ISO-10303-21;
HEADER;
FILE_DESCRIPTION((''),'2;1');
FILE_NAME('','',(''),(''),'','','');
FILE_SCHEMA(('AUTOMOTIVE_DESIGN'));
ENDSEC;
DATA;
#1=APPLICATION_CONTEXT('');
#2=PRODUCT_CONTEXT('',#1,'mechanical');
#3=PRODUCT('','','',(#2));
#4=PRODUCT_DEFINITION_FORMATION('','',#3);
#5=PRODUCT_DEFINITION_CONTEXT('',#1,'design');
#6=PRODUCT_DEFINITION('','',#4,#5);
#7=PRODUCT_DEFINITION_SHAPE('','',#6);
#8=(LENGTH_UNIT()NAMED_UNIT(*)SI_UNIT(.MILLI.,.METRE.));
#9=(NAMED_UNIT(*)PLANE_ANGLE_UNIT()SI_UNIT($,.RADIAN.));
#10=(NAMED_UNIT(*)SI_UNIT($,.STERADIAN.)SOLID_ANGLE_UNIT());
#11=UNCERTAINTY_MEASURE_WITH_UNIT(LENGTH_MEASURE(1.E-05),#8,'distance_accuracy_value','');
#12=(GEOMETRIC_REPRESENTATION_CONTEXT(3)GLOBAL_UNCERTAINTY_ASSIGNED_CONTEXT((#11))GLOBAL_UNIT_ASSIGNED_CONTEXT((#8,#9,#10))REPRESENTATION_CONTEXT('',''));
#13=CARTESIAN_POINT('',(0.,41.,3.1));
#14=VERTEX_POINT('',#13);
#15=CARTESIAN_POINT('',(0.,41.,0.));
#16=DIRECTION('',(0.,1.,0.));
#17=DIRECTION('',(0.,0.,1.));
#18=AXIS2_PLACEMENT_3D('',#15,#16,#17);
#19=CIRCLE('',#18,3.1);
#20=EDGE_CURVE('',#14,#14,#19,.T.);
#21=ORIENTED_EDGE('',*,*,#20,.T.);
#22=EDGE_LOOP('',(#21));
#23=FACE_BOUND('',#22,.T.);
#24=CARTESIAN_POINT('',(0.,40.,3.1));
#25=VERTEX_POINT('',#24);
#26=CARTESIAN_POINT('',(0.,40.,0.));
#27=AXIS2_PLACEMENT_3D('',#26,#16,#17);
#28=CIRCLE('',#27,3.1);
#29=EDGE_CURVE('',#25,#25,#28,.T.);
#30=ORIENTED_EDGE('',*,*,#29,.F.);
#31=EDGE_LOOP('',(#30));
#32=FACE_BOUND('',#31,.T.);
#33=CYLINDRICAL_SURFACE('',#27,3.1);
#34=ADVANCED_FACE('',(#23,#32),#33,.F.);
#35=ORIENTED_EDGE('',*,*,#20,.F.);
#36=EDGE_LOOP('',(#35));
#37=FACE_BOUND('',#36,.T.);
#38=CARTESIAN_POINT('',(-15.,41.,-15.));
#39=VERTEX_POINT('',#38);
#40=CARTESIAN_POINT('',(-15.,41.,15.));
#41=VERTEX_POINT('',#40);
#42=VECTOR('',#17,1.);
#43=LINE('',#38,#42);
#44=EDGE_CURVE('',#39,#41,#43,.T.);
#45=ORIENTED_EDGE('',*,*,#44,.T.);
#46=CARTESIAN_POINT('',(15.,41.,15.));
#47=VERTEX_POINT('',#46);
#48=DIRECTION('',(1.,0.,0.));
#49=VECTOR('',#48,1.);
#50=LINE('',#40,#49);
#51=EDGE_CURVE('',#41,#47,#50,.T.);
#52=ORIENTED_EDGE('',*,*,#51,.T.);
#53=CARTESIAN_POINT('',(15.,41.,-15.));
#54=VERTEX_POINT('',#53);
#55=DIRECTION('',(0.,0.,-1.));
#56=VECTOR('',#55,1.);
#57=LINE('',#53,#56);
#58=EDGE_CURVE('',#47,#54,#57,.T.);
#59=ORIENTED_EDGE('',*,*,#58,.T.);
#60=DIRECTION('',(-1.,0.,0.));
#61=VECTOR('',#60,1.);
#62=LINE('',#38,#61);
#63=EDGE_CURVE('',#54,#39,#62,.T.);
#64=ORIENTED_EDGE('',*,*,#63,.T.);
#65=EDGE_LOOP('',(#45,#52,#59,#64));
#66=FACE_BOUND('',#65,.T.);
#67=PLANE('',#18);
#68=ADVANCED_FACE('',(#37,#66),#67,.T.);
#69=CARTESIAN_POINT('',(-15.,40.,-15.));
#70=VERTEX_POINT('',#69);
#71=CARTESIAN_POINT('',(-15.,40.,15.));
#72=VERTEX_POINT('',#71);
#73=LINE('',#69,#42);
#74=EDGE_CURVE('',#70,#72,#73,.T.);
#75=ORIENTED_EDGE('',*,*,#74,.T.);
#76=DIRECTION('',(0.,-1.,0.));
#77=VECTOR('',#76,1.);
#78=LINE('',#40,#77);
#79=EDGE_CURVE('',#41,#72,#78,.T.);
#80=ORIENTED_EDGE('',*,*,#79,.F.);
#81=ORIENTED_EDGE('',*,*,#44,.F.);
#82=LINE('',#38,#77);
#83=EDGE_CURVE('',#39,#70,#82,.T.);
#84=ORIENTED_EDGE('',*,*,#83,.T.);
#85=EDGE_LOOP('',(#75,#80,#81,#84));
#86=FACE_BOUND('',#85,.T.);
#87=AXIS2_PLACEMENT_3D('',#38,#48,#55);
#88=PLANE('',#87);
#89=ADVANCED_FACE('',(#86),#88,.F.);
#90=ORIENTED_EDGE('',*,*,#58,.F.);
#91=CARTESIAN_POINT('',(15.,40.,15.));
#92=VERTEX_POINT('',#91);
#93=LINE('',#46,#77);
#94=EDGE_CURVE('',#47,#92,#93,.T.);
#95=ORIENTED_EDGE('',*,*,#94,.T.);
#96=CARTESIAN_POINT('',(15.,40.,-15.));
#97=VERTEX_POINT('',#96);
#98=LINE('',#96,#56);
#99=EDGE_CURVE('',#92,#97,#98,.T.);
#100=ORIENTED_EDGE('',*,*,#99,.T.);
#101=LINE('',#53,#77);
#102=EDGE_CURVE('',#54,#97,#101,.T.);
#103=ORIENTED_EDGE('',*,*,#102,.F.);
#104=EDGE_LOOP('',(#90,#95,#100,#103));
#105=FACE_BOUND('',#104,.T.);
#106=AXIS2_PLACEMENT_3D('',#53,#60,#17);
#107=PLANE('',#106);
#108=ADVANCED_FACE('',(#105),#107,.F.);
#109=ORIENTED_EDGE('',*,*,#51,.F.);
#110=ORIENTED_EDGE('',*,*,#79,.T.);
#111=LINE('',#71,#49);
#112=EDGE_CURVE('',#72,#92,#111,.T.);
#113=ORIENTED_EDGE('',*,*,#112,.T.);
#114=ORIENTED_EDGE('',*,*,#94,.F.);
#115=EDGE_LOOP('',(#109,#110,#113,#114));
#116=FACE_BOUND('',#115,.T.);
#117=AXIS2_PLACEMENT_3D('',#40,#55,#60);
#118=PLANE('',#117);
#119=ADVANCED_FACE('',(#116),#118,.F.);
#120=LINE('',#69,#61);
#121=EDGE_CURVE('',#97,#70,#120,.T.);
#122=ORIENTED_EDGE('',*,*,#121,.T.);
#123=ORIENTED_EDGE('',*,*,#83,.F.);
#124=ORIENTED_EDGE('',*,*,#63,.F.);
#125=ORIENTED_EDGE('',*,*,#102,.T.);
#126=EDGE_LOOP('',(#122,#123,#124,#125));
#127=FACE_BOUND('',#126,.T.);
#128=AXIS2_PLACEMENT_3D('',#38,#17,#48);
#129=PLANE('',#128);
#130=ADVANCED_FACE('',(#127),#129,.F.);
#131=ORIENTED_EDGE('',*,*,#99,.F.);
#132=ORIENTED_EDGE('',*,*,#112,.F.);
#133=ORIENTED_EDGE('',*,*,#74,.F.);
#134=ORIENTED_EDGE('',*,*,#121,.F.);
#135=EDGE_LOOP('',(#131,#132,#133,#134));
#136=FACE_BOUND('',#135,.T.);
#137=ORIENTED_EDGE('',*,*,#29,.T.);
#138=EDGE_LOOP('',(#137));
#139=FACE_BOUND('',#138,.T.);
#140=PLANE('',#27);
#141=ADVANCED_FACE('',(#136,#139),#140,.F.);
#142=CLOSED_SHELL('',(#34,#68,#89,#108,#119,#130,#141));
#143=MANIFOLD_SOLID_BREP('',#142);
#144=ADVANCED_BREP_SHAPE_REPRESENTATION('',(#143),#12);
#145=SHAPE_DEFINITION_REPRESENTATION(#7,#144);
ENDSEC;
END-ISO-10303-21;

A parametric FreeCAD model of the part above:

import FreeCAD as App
import Part
import Sketcher
Q = App.Units.Quantity


def add_polygon(sketch, points):
    """Adds a closed chain of lines whose ends are joined by coincident constraints."""
    first, n = sketch.GeometryCount, len(points)
    for a, b in zip(points, points[1:] + points[:1]):
        sketch.addGeometry(Part.LineSegment(App.Vector(*a, 0), App.Vector(*b, 0)), False)
    for i in range(n):
        sketch.addConstraint(Sketcher.Constraint("Coincident", first + i, 2, first + (i + 1) % n, 1))

doc = App.newDocument("Part")
params = doc.addObject("Spreadsheet::Sheet", "Params")
for row, (alias, value) in enumerate([
    ("sketch1_width", "30 mm"),
    ("pad1_length", "10 mm"),
    ("sketch2_width", "30 mm"),
    ("sketch2_width2", "25 mm"),
    ("pad2_length", "15 mm"),
    ("sketch3_width", "30 mm"),
    ("pad3_length", "15 mm"),
    ("sketch4_diameter", "6.1 mm"),
    ("pad4_length", "40 mm"),
    ("sketch5_width", "7.5 mm"),
    ("pad5_length", "10 mm"),
    ("pad5_length2", "40 mm"),
    ("sketch6_diameter", "5.52 mm"),
    ("pocket1_length", "10 mm"),
    ("sketch7_width", "30 mm"),
    ("pad6_length", "1 mm"),
    ("sketch8_diameter", "6.2 mm"),
    ("pocket2_length", "1 mm"),
], start=1):
    params.set(f"A{row}", alias)
    params.set(f"B{row}", "=" + value)
    params.setAlias(f"B{row}", alias)

body = doc.addObject("PartDesign::Body", "Body")

sketch1 = body.newObject("Sketcher::SketchObject", "Sketch")
sketch1.AttachmentSupport = (doc.getObject("XZ_Plane"), [""])
sketch1.MapMode = "FlatFace"
add_polygon(sketch1, [(-15, -15), (-15, 15), (15, 15), (15, -15)])
sketch1.addConstraint(Sketcher.Constraint("Vertical", 0))
sketch1.addConstraint(Sketcher.Constraint("Horizontal", 1))
sketch1.addConstraint(Sketcher.Constraint("Vertical", 2))
sketch1.addConstraint(Sketcher.Constraint("Horizontal", 3))
sketch1.addConstraint(Sketcher.Constraint("Symmetric", 0, 2, 2, 2, -1, 1))
sketch1.addConstraint(Sketcher.Constraint("Equal", 3, 0))
sketch1.addConstraint(Sketcher.Constraint("DistanceX", 1, 1, 1, 2, Q("30 mm")))
sketch1.setExpression("Constraints[10]", "Params.sketch1_width")
pad1 = body.newObject("PartDesign::Pad", "Pad")
pad1.Profile = sketch1
pad1.setExpression("Length", "Params.pad1_length")
pad1.Reversed = True
body2 = doc.addObject("PartDesign::Body", "Body001")

sketch2 = body2.newObject("Sketcher::SketchObject", "Sketch001")
sketch2.AttachmentSupport = (doc.getObject("XZ_Plane001"), [""])
sketch2.MapMode = "FlatFace"
sketch2.AttachmentOffset = App.Placement(App.Vector(0, 0, -10), App.Rotation())
add_polygon(sketch2, [(-15, -15), (-15, 15), (15, 15), (15, -15)])
add_polygon(sketch2, [(12.5, 12.5), (-12.5, 12.5), (-12.5, -12.5), (12.5, -12.5)])
sketch2.addConstraint(Sketcher.Constraint("Vertical", 0))
sketch2.addConstraint(Sketcher.Constraint("Horizontal", 1))
sketch2.addConstraint(Sketcher.Constraint("Vertical", 2))
sketch2.addConstraint(Sketcher.Constraint("Horizontal", 3))
sketch2.addConstraint(Sketcher.Constraint("Horizontal", 4))
sketch2.addConstraint(Sketcher.Constraint("Vertical", 5))
sketch2.addConstraint(Sketcher.Constraint("Horizontal", 6))
sketch2.addConstraint(Sketcher.Constraint("Vertical", 7))
sketch2.addConstraint(Sketcher.Constraint("Symmetric", 0, 2, 2, 2, -1, 1))
sketch2.addConstraint(Sketcher.Constraint("Symmetric", 4, 2, 6, 2, -1, 1))
sketch2.addConstraint(Sketcher.Constraint("Equal", 3, 0))
sketch2.addConstraint(Sketcher.Constraint("Equal", 6, 5))
sketch2.addConstraint(Sketcher.Constraint("DistanceX", 1, 1, 1, 2, Q("30 mm")))
sketch2.addConstraint(Sketcher.Constraint("DistanceX", 4, 2, 4, 1, Q("25 mm")))
sketch2.setExpression("Constraints[20]", "Params.sketch2_width")
sketch2.setExpression("Constraints[21]", "Params.sketch2_width2")
pad2 = body2.newObject("PartDesign::Pad", "Pad001")
pad2.Profile = sketch2
pad2.setExpression("Length", "Params.pad2_length")
pad2.Reversed = True
body3 = doc.addObject("PartDesign::Body", "Body002")

sketch3 = body3.newObject("Sketcher::SketchObject", "Sketch002")
sketch3.AttachmentSupport = (doc.getObject("XZ_Plane002"), [""])
sketch3.MapMode = "FlatFace"
sketch3.AttachmentOffset = App.Placement(App.Vector(0, 0, -25), App.Rotation())
add_polygon(sketch3, [(-15, -15), (-15, 15), (15, 15), (15, -15)])
sketch3.addConstraint(Sketcher.Constraint("Vertical", 0))
sketch3.addConstraint(Sketcher.Constraint("Horizontal", 1))
sketch3.addConstraint(Sketcher.Constraint("Vertical", 2))
sketch3.addConstraint(Sketcher.Constraint("Horizontal", 3))
sketch3.addConstraint(Sketcher.Constraint("Symmetric", 0, 2, 2, 2, -1, 1))
sketch3.addConstraint(Sketcher.Constraint("Equal", 3, 0))
sketch3.addConstraint(Sketcher.Constraint("DistanceX", 1, 1, 1, 2, Q("30 mm")))
sketch3.setExpression("Constraints[10]", "Params.sketch3_width")
pad3 = body3.newObject("PartDesign::Pad", "Pad002")
pad3.Profile = sketch3
pad3.setExpression("Length", "Params.pad3_length")
pad3.Reversed = True
body4 = doc.addObject("PartDesign::Body", "Body003")

sketch4 = body4.newObject("Sketcher::SketchObject", "Sketch003")
sketch4.AttachmentSupport = (doc.getObject("XZ_Plane003"), [""])
sketch4.MapMode = "FlatFace"
sketch4.addGeometry(Part.Circle(App.Vector(0, 0, 0), App.Vector(0, 0, 1), 3.05), False)
sketch4.addConstraint(Sketcher.Constraint("Coincident", 0, 3, -1, 1))
sketch4.addConstraint(Sketcher.Constraint("Diameter", 0, Q("6.1 mm")))
sketch4.setExpression("Constraints[1]", "Params.sketch4_diameter")
pad4 = body4.newObject("PartDesign::Pad", "Pad003")
pad4.Profile = sketch4
pad4.setExpression("Length", "Params.pad4_length")
pad4.Reversed = True
doc.recompute()

body5 = doc.addObject("PartDesign::Body", "Body004")
body5.BaseFeature = body4
boolean = body.newObject("PartDesign::Boolean", "Boolean")
boolean.Type = "Cut"
boolean.addObjects([body5])
doc.recompute()

boolean2 = body3.newObject("PartDesign::Boolean", "Boolean001")
boolean2.Type = "Cut"
boolean2.addObjects([body4])

sketch5 = body3.newObject("Sketcher::SketchObject", "Sketch004")
sketch5.AttachmentSupport = (doc.getObject("XY_Plane002"), [""])
sketch5.MapMode = "FlatFace"
sketch5.AttachmentOffset = App.Placement(App.Vector(0, 0, -15), App.Rotation())
add_polygon(sketch5, [(15, 26.017843), (15, 25), (7.5, 25), (7.5, 26.017843)])
add_polygon(sketch5, [(-7.5, 26.276183), (-7.5, 25), (-15, 25), (-15, 26.276183)])
sketch5.addConstraint(Sketcher.Constraint("Vertical", 0))
sketch5.addConstraint(Sketcher.Constraint("Horizontal", 1))
sketch5.addConstraint(Sketcher.Constraint("Vertical", 2))
sketch5.addConstraint(Sketcher.Constraint("Horizontal", 3))
sketch5.addConstraint(Sketcher.Constraint("Vertical", 4))
sketch5.addConstraint(Sketcher.Constraint("Horizontal", 5))
sketch5.addConstraint(Sketcher.Constraint("Vertical", 6))
sketch5.addConstraint(Sketcher.Constraint("Horizontal", 7))
sketch5.addConstraint(Sketcher.Constraint("Symmetric", 1, 2, 4, 2, -2))
sketch5.addConstraint(Sketcher.Constraint("Equal", 3, 5))
sketch5.addConstraint(Sketcher.Constraint("DistanceX", 1, 2, 1, 1, Q("7.5 mm")))
sketch5.addConstraint(Sketcher.Constraint("DistanceX", -1, 1, 0, 2, Q("15 mm")))
sketch5.addConstraint(Sketcher.Constraint("DistanceY", -1, 1, 0, 2, Q("25 mm")))
sketch5.addConstraint(Sketcher.Constraint("DistanceY", 0, 2, 0, 1, Q("1.017843 mm")))
sketch5.addConstraint(Sketcher.Constraint("DistanceY", 4, 2, 4, 1, Q("1.276183 mm")))
sketch5.setExpression("Constraints[18]", "Params.sketch5_width")
pad5 = body3.newObject("PartDesign::Pad", "Pad004")
pad5.Profile = sketch5
pad5.Type = "TwoLengths"
pad5.setExpression("Length", "Params.pad5_length")
pad5.setExpression("Length2", "Params.pad5_length2")
pad5.Reversed = True

sketch6 = body3.newObject("Sketcher::SketchObject", "Sketch005")
sketch6.AttachmentSupport = (doc.getObject("XZ_Plane002"), [""])
sketch6.MapMode = "FlatFace"
sketch6.AttachmentOffset = App.Placement(App.Vector(0, 0, -26.276183), App.Rotation())
sketch6.addGeometry(Part.Circle(App.Vector(-11.25, -20, 0), App.Vector(0, 0, 1), 2.76), False)
sketch6.addGeometry(Part.Circle(App.Vector(11.25, -20, 0), App.Vector(0, 0, 1), 2.76), False)
sketch6.addGeometry(Part.Circle(App.Vector(11.25, 20.5, 0), App.Vector(0, 0, 1), 2.76), False)
sketch6.addGeometry(Part.Circle(App.Vector(-11.25, 20.5, 0), App.Vector(0, 0, 1), 2.76), False)
sketch6.addConstraint(Sketcher.Constraint("Equal", 0, 1))
sketch6.addConstraint(Sketcher.Constraint("Equal", 1, 2))
sketch6.addConstraint(Sketcher.Constraint("Equal", 2, 3))
sketch6.addConstraint(Sketcher.Constraint("Symmetric", 0, 3, 1, 3, -2))
sketch6.addConstraint(Sketcher.Constraint("Symmetric", 2, 3, 3, 3, -2))
sketch6.addConstraint(Sketcher.Constraint("Vertical", 1, 3, 2, 3))
sketch6.addConstraint(Sketcher.Constraint("Diameter", 0, Q("5.52 mm")))
sketch6.addConstraint(Sketcher.Constraint("DistanceY", 0, 3, -1, 1, Q("20 mm")))
sketch6.addConstraint(Sketcher.Constraint("DistanceY", -1, 1, 2, 3, Q("20.5 mm")))
sketch6.addConstraint(Sketcher.Constraint("DistanceX", 0, 3, 1, 3, Q("22.5 mm")))
sketch6.setExpression("Constraints[6]", "Params.sketch6_diameter")
pocket1 = body3.newObject("PartDesign::Pocket", "Pocket")
pocket1.Profile = sketch6
pocket1.setExpression("Length", "Params.pocket1_length")
pocket1.Reversed = True
body6 = doc.addObject("PartDesign::Body", "Body005")

sketch7 = body6.newObject("Sketcher::SketchObject", "Sketch006")
sketch7.AttachmentSupport = (doc.getObject("XZ_Plane005"), [""])
sketch7.MapMode = "FlatFace"
sketch7.AttachmentOffset = App.Placement(App.Vector(0, 0, -40), App.Rotation())
add_polygon(sketch7, [(-15, -15), (-15, 15), (15, 15), (15, -15)])
sketch7.addConstraint(Sketcher.Constraint("Vertical", 0))
sketch7.addConstraint(Sketcher.Constraint("Horizontal", 1))
sketch7.addConstraint(Sketcher.Constraint("Vertical", 2))
sketch7.addConstraint(Sketcher.Constraint("Horizontal", 3))
sketch7.addConstraint(Sketcher.Constraint("Symmetric", 0, 2, 2, 2, -1, 1))
sketch7.addConstraint(Sketcher.Constraint("Equal", 3, 0))
sketch7.addConstraint(Sketcher.Constraint("DistanceX", 1, 1, 1, 2, Q("30 mm")))
sketch7.setExpression("Constraints[10]", "Params.sketch7_width")
pad6 = body6.newObject("PartDesign::Pad", "Pad005")
pad6.Profile = sketch7
pad6.setExpression("Length", "Params.pad6_length")
pad6.Reversed = True

sketch8 = body6.newObject("Sketcher::SketchObject", "Sketch007")
sketch8.AttachmentSupport = (doc.getObject("XZ_Plane005"), [""])
sketch8.MapMode = "FlatFace"
sketch8.AttachmentOffset = App.Placement(App.Vector(0, 0, -41), App.Rotation())
sketch8.addGeometry(Part.Circle(App.Vector(0, 0, 0), App.Vector(0, 0, 1), 3.1), False)
sketch8.addConstraint(Sketcher.Constraint("Coincident", 0, 3, -1, 1))
sketch8.addConstraint(Sketcher.Constraint("Diameter", 0, Q("6.2 mm")))
sketch8.setExpression("Constraints[1]", "Params.sketch8_diameter")
pocket2 = body6.newObject("PartDesign::Pocket", "Pocket001")
pocket2.Profile = sketch8
pocket2.setExpression("Length", "Params.pocket2_length")
pocket2.Reversed = True
body.Visibility = False
body2.Visibility = False
body3.Visibility = False

doc.recompute()
